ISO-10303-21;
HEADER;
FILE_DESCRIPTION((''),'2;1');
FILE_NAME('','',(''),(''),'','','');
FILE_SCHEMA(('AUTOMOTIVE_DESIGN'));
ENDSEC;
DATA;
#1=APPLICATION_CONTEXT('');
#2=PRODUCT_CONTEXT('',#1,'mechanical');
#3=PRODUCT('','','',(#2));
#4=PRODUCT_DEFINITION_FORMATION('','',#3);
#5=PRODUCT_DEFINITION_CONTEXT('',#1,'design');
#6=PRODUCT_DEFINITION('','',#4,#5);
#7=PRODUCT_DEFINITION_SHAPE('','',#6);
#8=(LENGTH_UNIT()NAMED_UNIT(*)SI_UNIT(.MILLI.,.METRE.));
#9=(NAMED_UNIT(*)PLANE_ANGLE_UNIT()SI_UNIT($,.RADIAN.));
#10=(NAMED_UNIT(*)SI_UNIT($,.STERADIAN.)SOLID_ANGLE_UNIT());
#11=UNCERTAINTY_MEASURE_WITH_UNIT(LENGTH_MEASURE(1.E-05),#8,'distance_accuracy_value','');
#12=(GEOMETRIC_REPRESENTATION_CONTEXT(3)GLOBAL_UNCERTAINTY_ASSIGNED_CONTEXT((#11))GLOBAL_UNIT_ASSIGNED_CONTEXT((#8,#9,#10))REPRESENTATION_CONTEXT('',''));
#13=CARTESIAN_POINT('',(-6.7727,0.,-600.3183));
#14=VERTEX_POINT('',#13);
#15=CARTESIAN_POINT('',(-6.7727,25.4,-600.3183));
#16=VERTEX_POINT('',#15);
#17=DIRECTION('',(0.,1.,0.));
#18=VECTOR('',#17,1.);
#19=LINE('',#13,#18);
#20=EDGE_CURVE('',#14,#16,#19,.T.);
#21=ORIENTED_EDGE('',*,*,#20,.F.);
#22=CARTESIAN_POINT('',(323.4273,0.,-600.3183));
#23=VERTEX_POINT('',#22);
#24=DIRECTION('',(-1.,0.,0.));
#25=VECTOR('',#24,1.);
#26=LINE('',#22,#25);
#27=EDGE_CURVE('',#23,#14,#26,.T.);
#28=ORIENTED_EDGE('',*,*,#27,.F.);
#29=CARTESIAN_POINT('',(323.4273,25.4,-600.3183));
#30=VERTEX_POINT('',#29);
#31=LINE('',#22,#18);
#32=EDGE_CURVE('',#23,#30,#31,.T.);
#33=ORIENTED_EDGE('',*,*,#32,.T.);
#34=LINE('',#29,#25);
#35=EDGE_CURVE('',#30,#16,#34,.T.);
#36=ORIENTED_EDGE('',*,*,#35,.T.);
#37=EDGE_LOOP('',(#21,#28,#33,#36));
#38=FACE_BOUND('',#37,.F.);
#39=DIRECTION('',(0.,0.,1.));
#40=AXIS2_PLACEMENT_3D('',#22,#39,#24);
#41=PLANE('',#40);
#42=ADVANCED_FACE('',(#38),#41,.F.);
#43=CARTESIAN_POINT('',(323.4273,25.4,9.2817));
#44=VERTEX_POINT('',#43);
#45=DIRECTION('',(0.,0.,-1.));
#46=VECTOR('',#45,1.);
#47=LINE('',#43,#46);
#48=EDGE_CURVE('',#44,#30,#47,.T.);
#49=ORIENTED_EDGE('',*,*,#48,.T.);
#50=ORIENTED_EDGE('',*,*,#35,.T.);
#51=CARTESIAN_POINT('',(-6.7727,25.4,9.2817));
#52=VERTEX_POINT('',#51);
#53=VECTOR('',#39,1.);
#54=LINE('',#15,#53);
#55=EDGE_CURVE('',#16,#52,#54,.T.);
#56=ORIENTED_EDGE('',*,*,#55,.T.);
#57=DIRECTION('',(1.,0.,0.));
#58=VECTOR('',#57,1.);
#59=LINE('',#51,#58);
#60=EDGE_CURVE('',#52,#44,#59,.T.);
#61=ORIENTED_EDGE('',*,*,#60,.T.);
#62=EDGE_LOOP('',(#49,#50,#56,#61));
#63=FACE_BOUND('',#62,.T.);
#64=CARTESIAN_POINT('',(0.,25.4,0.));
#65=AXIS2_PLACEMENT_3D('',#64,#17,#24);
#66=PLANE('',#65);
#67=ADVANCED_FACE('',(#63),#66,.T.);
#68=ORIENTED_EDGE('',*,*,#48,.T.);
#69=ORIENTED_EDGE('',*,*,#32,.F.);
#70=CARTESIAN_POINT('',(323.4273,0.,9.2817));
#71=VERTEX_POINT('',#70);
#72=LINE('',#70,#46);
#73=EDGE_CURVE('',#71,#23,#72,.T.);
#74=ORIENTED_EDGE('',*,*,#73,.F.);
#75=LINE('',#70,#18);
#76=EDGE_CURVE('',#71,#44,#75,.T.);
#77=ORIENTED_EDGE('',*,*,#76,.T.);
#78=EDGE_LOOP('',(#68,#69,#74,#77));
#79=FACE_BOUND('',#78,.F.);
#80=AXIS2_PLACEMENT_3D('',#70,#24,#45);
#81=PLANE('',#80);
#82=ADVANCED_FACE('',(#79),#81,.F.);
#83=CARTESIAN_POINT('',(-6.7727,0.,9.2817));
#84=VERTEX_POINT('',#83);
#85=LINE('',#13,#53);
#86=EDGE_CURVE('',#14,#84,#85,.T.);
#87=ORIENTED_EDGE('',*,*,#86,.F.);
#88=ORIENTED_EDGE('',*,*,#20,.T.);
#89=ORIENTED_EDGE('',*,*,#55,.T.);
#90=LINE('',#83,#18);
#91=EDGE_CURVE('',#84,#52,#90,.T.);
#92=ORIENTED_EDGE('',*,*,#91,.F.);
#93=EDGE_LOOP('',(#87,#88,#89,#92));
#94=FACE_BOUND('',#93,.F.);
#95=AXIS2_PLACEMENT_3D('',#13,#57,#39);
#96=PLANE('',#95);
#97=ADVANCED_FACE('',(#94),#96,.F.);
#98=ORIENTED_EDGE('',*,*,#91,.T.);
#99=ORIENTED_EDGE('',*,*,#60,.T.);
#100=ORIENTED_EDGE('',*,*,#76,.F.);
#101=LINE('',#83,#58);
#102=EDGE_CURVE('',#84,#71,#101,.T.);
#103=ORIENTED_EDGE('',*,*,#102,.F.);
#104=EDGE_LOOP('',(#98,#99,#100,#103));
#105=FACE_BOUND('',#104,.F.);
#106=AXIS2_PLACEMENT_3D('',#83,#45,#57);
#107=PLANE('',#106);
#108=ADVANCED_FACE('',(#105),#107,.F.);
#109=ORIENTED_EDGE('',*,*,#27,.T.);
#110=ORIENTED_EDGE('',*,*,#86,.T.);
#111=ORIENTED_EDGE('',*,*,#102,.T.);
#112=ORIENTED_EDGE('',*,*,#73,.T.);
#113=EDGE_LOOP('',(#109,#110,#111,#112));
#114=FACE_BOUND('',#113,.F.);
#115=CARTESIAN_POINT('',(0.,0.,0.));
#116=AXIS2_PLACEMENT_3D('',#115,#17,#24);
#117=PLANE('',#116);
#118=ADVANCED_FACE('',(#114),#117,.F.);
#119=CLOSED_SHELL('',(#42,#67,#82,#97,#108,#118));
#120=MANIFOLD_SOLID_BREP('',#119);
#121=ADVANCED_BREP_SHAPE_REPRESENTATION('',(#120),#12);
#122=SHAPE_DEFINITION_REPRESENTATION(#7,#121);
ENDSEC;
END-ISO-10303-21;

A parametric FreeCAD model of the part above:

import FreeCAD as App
import Part
import Sketcher

V = App.Vector
Q = App.Units.Quantity


def add_polygon(sketch, points):
    """Adds a closed chain of lines whose ends are joined by coincident constraints."""
    first, n = sketch.GeometryCount, len(points)
    for a, b in zip(points, points[1:] + points[:1]):
        sketch.addGeometry(Part.LineSegment(App.Vector(*a, 0), App.Vector(*b, 0)), False)
    for i in range(n):
        sketch.addConstraint(Sketcher.Constraint("Coincident", first + i, 2, first + (i + 1) % n, 1))

doc = App.newDocument("Part")
body = doc.addObject("PartDesign::Body", "Body")

# Sketch on XZ plane
sketch1 = body.newObject("Sketcher::SketchObject", "Sketch")
sketch1.AttachmentSupport = (doc.getObject("XZ_Plane"), [""])
sketch1.MapMode = "FlatFace"
add_polygon(sketch1, [(-7, -600), (-7, 9), (323, 9), (323, -600)])  # lines 0-3
sketch1.addConstraint([
    Sketcher.Constraint("Vertical", 0),
    Sketcher.Constraint("Horizontal", 1),
    Sketcher.Constraint("Vertical", 2),
    Sketcher.Constraint("Horizontal", 3),
    Sketcher.Constraint("DistanceX", 1, 1, 1, 2, Q("13 in")),
    Sketcher.Constraint("DistanceY", 0, 1, 0, 2, Q("24 in")),
    Sketcher.Constraint("DistanceX", 0, 2, -1, 1, 6.7727),
    Sketcher.Constraint("DistanceY", -1, 1, 0, 2, 9.2817),
])
pad1 = body.newObject("PartDesign::Pad", "Pad")
pad1.Profile = sketch1
pad1.Length = Q("1 in")
pad1.Reversed = True

doc.recompute()
